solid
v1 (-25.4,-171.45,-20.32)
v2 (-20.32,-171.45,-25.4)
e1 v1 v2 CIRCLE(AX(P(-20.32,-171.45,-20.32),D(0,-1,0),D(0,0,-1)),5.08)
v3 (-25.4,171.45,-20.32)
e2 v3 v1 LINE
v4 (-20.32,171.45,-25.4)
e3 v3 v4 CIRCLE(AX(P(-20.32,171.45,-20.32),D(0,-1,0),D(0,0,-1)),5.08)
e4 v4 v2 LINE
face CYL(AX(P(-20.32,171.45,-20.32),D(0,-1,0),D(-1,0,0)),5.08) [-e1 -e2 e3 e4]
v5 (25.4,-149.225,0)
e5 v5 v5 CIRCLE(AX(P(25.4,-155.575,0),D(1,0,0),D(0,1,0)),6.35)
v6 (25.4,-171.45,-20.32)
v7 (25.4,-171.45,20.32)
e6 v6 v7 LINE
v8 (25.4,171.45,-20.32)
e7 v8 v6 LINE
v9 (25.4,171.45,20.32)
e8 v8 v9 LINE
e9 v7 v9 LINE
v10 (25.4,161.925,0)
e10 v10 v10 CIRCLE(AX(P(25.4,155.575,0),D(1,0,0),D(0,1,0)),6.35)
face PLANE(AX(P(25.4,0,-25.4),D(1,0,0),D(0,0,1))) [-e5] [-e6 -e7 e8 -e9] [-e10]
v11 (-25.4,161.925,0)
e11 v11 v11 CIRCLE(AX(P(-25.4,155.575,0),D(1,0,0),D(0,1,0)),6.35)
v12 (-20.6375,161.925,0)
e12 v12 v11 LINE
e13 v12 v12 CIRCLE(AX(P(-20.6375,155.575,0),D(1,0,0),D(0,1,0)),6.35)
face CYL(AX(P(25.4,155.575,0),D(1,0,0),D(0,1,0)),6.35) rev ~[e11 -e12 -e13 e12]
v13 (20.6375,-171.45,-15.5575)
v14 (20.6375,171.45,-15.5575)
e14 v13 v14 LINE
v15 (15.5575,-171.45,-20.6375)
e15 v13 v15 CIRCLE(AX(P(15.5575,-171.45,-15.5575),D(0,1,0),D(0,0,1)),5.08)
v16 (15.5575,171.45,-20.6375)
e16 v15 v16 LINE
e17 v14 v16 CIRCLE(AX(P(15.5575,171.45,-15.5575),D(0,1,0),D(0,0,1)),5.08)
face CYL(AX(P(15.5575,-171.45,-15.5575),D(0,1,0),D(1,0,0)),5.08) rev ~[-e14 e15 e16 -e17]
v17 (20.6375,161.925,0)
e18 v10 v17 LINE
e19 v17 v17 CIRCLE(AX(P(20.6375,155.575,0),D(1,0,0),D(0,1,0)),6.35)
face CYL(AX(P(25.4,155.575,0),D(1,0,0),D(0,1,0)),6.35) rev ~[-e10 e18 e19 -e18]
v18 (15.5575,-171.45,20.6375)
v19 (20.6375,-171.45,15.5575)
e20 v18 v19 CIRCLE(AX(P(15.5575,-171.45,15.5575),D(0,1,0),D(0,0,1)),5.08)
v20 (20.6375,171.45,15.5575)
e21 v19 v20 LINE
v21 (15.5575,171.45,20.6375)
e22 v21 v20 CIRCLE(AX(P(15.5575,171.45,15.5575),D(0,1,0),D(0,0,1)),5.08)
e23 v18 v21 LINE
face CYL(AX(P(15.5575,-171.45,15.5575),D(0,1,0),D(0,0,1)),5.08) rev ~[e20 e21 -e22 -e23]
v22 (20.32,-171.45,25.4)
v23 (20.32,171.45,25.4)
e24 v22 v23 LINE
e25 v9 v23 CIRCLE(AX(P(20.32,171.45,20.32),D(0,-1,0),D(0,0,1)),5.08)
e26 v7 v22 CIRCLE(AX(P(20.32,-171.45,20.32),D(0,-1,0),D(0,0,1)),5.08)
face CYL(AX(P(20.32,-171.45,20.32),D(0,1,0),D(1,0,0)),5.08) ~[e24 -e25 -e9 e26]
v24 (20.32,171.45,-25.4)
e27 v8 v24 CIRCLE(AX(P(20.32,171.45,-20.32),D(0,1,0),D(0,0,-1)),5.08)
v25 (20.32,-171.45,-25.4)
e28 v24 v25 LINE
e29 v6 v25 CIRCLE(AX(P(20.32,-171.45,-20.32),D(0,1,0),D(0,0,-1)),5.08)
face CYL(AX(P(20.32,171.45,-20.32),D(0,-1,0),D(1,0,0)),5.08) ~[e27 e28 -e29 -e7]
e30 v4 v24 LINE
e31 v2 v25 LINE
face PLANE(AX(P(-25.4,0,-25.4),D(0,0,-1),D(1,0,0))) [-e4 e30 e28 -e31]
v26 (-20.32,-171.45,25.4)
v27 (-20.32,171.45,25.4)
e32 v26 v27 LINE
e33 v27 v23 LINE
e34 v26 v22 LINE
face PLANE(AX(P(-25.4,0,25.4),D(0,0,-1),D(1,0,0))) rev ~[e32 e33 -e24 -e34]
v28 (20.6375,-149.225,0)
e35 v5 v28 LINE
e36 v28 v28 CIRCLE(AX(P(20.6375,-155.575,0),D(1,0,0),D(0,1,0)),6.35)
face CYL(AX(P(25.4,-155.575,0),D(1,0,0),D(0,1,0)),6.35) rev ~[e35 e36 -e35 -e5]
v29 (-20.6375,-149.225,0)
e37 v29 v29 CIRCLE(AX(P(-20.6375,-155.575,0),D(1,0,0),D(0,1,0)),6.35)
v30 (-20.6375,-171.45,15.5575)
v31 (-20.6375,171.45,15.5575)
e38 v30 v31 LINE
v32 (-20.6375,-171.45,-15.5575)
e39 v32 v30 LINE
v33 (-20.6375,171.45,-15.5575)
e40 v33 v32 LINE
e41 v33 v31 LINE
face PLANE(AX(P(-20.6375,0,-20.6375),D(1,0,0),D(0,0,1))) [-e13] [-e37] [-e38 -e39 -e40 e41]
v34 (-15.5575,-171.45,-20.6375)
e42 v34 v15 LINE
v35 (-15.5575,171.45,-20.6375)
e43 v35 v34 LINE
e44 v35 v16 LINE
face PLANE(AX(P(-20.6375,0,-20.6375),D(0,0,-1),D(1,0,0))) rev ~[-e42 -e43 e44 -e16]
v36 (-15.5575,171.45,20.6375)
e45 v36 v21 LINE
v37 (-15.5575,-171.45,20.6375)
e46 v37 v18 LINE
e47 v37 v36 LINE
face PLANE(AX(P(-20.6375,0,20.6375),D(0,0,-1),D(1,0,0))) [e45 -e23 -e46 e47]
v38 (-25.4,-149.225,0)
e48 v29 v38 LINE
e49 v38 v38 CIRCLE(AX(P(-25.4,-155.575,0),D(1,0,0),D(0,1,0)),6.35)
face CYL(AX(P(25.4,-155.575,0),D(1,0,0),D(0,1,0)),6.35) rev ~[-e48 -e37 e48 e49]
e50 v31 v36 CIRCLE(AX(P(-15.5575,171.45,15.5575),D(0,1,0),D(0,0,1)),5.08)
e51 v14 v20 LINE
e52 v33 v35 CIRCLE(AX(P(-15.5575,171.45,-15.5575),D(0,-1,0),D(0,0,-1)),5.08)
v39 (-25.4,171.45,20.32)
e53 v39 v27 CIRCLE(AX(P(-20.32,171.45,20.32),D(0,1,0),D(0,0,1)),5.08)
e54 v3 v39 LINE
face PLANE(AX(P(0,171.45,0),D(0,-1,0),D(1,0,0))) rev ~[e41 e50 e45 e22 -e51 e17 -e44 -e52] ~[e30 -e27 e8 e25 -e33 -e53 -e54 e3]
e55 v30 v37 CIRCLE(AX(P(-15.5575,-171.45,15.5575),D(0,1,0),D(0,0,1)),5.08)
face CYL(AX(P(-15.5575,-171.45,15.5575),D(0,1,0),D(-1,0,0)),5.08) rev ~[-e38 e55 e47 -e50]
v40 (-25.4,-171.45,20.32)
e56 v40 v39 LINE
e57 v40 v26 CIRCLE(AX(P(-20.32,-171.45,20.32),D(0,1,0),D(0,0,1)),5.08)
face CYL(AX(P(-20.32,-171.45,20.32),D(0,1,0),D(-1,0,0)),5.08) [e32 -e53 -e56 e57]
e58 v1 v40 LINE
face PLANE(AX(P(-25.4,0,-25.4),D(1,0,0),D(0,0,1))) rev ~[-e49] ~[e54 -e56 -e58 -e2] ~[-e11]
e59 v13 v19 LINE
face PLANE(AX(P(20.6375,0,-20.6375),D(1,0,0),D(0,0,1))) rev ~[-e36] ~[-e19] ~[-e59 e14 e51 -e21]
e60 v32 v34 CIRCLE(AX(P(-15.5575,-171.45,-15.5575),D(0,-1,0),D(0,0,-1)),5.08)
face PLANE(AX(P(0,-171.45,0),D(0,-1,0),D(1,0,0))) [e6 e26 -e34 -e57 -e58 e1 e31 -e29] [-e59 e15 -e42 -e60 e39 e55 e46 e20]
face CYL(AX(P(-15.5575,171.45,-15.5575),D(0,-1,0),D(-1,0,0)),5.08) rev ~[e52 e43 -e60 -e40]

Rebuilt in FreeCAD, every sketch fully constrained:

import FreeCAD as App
import Part
import Sketcher

V = App.Vector
Q = App.Units.Quantity


def edges_at(feature, points):
    """Names of the edges that pass closest to the given points."""
    edges = feature.Shape.Edges
    near = lambda p: min(range(len(edges)), key=lambda i: edges[i].distToShape(Part.Vertex(*p))[0])
    return sorted({f"Edge{near(p) + 1}" for p in points})


def add_polygon(sketch, points):
    """Adds a closed chain of lines whose ends are joined by coincident constraints."""
    first, n = sketch.GeometryCount, len(points)
    for a, b in zip(points, points[1:] + points[:1]):
        sketch.addGeometry(Part.LineSegment(App.Vector(*a, 0), App.Vector(*b, 0)), False)
    for i in range(n):
        sketch.addConstraint(Sketcher.Constraint("Coincident", first + i, 2, first + (i + 1) % n, 1))

doc = App.newDocument("Part")
params = doc.addObject("Spreadsheet::Sheet", "Params")
for row, (alias, value) in enumerate([
    ("sketch1_width", "2 in"),
    ("sketch1_width2", "1.625 in"),
    ("pad1_length", "13.5 in"),
    ("fillet_radius", "0.2 in"),
    ("sketch2_diameter", "0.5 in"),
], start=1):
    params.set(f"A{row}", alias)
    params.set(f"B{row}", "=" + value)
    params.setAlias(f"B{row}", alias)

body = doc.addObject("PartDesign::Body", "Body")

sketch1 = body.newObject("Sketcher::SketchObject", "Sketch")
sketch1.AttachmentSupport = (doc.getObject("XZ_Plane"), [""])
sketch1.MapMode = "FlatFace"
add_polygon(sketch1, [(-25, 25), (-25, -25), (25, -25), (25, 25)])
add_polygon(sketch1, [(21, -21), (-21, -21), (-21, 21), (21, 21)])
sketch1.addConstraint(Sketcher.Constraint("Vertical", 0))
sketch1.addConstraint(Sketcher.Constraint("Horizontal", 1))
sketch1.addConstraint(Sketcher.Constraint("Vertical", 2))
sketch1.addConstraint(Sketcher.Constraint("Horizontal", 3))
sketch1.addConstraint(Sketcher.Constraint("Horizontal", 4))
sketch1.addConstraint(Sketcher.Constraint("Vertical", 5))
sketch1.addConstraint(Sketcher.Constraint("Horizontal", 6))
sketch1.addConstraint(Sketcher.Constraint("Vertical", 7))
sketch1.addConstraint(Sketcher.Constraint("Symmetric", 0, 2, 2, 2, -1, 1))
sketch1.addConstraint(Sketcher.Constraint("Symmetric", 4, 2, 6, 2, -1, 1))
sketch1.addConstraint(Sketcher.Constraint("Equal", 3, 0))
sketch1.addConstraint(Sketcher.Constraint("Equal", 6, 5))
sketch1.addConstraint(Sketcher.Constraint("DistanceX", 1, 1, 1, 2, Q("2 in")))
sketch1.addConstraint(Sketcher.Constraint("DistanceX", 4, 2, 4, 1, Q("1.625 in")))
sketch1.setExpression("Constraints[20]", "Params.sketch1_width")
sketch1.setExpression("Constraints[21]", "Params.sketch1_width2")
pad1 = body.newObject("PartDesign::Pad", "Pad")
pad1.Profile = sketch1
pad1.setExpression("Length", "Params.pad1_length")
pad1.Midplane = True
doc.recompute()

fillet = body.newObject("PartDesign::Fillet", "Fillet")
fillet.Base = (pad1, edges_at(pad1, [
    (-20.637, 0, 20.637),
    (25.4, 0, -25.4),
    (-25.4, 0, -25.4),
    (25.4, 0, 25.4),
    (20.637, 0, -20.637),
    (-25.4, 0, 25.4),
    (20.637, 0, 20.637),
    (-20.637, 0, -20.637),
]))
fillet.setExpression("Radius", "Params.fillet_radius")

sketch2 = body.newObject("Sketcher::SketchObject", "Sketch001")
sketch2.AttachmentSupport = (doc.getObject("YZ_Plane"), [""])
sketch2.MapMode = "FlatFace"
sketch2.AttachmentOffset = App.Placement(V(0, 0, 1 * 25.4), App.Rotation())
sketch2.addGeometry(Part.Circle(V(-156, 0, 0), V(0, 0, 1), 6), False)
sketch2.addGeometry(Part.Circle(V(156, 0, 0), V(0, 0, 1), 6), False)
sketch2.addConstraint(Sketcher.Constraint("Equal", 0, 1))
sketch2.addConstraint(Sketcher.Constraint("Symmetric", 0, 3, 1, 3, -1, 1))
sketch2.addConstraint(Sketcher.Constraint("PointOnObject", 0, 3, -1))
sketch2.addConstraint(Sketcher.Constraint("Diameter", 0, Q("0.5 in")))
sketch2.addConstraint(Sketcher.Constraint("DistanceX", 0, 3, 1, 3, Q("12.25 in")))
sketch2.setExpression("Constraints[3]", "Params.sketch2_diameter")
pocket1 = body.newObject("PartDesign::Pocket", "Pocket")
pocket1.Profile = sketch2
pocket1.Type = "ThroughAll"

doc.recompute()
